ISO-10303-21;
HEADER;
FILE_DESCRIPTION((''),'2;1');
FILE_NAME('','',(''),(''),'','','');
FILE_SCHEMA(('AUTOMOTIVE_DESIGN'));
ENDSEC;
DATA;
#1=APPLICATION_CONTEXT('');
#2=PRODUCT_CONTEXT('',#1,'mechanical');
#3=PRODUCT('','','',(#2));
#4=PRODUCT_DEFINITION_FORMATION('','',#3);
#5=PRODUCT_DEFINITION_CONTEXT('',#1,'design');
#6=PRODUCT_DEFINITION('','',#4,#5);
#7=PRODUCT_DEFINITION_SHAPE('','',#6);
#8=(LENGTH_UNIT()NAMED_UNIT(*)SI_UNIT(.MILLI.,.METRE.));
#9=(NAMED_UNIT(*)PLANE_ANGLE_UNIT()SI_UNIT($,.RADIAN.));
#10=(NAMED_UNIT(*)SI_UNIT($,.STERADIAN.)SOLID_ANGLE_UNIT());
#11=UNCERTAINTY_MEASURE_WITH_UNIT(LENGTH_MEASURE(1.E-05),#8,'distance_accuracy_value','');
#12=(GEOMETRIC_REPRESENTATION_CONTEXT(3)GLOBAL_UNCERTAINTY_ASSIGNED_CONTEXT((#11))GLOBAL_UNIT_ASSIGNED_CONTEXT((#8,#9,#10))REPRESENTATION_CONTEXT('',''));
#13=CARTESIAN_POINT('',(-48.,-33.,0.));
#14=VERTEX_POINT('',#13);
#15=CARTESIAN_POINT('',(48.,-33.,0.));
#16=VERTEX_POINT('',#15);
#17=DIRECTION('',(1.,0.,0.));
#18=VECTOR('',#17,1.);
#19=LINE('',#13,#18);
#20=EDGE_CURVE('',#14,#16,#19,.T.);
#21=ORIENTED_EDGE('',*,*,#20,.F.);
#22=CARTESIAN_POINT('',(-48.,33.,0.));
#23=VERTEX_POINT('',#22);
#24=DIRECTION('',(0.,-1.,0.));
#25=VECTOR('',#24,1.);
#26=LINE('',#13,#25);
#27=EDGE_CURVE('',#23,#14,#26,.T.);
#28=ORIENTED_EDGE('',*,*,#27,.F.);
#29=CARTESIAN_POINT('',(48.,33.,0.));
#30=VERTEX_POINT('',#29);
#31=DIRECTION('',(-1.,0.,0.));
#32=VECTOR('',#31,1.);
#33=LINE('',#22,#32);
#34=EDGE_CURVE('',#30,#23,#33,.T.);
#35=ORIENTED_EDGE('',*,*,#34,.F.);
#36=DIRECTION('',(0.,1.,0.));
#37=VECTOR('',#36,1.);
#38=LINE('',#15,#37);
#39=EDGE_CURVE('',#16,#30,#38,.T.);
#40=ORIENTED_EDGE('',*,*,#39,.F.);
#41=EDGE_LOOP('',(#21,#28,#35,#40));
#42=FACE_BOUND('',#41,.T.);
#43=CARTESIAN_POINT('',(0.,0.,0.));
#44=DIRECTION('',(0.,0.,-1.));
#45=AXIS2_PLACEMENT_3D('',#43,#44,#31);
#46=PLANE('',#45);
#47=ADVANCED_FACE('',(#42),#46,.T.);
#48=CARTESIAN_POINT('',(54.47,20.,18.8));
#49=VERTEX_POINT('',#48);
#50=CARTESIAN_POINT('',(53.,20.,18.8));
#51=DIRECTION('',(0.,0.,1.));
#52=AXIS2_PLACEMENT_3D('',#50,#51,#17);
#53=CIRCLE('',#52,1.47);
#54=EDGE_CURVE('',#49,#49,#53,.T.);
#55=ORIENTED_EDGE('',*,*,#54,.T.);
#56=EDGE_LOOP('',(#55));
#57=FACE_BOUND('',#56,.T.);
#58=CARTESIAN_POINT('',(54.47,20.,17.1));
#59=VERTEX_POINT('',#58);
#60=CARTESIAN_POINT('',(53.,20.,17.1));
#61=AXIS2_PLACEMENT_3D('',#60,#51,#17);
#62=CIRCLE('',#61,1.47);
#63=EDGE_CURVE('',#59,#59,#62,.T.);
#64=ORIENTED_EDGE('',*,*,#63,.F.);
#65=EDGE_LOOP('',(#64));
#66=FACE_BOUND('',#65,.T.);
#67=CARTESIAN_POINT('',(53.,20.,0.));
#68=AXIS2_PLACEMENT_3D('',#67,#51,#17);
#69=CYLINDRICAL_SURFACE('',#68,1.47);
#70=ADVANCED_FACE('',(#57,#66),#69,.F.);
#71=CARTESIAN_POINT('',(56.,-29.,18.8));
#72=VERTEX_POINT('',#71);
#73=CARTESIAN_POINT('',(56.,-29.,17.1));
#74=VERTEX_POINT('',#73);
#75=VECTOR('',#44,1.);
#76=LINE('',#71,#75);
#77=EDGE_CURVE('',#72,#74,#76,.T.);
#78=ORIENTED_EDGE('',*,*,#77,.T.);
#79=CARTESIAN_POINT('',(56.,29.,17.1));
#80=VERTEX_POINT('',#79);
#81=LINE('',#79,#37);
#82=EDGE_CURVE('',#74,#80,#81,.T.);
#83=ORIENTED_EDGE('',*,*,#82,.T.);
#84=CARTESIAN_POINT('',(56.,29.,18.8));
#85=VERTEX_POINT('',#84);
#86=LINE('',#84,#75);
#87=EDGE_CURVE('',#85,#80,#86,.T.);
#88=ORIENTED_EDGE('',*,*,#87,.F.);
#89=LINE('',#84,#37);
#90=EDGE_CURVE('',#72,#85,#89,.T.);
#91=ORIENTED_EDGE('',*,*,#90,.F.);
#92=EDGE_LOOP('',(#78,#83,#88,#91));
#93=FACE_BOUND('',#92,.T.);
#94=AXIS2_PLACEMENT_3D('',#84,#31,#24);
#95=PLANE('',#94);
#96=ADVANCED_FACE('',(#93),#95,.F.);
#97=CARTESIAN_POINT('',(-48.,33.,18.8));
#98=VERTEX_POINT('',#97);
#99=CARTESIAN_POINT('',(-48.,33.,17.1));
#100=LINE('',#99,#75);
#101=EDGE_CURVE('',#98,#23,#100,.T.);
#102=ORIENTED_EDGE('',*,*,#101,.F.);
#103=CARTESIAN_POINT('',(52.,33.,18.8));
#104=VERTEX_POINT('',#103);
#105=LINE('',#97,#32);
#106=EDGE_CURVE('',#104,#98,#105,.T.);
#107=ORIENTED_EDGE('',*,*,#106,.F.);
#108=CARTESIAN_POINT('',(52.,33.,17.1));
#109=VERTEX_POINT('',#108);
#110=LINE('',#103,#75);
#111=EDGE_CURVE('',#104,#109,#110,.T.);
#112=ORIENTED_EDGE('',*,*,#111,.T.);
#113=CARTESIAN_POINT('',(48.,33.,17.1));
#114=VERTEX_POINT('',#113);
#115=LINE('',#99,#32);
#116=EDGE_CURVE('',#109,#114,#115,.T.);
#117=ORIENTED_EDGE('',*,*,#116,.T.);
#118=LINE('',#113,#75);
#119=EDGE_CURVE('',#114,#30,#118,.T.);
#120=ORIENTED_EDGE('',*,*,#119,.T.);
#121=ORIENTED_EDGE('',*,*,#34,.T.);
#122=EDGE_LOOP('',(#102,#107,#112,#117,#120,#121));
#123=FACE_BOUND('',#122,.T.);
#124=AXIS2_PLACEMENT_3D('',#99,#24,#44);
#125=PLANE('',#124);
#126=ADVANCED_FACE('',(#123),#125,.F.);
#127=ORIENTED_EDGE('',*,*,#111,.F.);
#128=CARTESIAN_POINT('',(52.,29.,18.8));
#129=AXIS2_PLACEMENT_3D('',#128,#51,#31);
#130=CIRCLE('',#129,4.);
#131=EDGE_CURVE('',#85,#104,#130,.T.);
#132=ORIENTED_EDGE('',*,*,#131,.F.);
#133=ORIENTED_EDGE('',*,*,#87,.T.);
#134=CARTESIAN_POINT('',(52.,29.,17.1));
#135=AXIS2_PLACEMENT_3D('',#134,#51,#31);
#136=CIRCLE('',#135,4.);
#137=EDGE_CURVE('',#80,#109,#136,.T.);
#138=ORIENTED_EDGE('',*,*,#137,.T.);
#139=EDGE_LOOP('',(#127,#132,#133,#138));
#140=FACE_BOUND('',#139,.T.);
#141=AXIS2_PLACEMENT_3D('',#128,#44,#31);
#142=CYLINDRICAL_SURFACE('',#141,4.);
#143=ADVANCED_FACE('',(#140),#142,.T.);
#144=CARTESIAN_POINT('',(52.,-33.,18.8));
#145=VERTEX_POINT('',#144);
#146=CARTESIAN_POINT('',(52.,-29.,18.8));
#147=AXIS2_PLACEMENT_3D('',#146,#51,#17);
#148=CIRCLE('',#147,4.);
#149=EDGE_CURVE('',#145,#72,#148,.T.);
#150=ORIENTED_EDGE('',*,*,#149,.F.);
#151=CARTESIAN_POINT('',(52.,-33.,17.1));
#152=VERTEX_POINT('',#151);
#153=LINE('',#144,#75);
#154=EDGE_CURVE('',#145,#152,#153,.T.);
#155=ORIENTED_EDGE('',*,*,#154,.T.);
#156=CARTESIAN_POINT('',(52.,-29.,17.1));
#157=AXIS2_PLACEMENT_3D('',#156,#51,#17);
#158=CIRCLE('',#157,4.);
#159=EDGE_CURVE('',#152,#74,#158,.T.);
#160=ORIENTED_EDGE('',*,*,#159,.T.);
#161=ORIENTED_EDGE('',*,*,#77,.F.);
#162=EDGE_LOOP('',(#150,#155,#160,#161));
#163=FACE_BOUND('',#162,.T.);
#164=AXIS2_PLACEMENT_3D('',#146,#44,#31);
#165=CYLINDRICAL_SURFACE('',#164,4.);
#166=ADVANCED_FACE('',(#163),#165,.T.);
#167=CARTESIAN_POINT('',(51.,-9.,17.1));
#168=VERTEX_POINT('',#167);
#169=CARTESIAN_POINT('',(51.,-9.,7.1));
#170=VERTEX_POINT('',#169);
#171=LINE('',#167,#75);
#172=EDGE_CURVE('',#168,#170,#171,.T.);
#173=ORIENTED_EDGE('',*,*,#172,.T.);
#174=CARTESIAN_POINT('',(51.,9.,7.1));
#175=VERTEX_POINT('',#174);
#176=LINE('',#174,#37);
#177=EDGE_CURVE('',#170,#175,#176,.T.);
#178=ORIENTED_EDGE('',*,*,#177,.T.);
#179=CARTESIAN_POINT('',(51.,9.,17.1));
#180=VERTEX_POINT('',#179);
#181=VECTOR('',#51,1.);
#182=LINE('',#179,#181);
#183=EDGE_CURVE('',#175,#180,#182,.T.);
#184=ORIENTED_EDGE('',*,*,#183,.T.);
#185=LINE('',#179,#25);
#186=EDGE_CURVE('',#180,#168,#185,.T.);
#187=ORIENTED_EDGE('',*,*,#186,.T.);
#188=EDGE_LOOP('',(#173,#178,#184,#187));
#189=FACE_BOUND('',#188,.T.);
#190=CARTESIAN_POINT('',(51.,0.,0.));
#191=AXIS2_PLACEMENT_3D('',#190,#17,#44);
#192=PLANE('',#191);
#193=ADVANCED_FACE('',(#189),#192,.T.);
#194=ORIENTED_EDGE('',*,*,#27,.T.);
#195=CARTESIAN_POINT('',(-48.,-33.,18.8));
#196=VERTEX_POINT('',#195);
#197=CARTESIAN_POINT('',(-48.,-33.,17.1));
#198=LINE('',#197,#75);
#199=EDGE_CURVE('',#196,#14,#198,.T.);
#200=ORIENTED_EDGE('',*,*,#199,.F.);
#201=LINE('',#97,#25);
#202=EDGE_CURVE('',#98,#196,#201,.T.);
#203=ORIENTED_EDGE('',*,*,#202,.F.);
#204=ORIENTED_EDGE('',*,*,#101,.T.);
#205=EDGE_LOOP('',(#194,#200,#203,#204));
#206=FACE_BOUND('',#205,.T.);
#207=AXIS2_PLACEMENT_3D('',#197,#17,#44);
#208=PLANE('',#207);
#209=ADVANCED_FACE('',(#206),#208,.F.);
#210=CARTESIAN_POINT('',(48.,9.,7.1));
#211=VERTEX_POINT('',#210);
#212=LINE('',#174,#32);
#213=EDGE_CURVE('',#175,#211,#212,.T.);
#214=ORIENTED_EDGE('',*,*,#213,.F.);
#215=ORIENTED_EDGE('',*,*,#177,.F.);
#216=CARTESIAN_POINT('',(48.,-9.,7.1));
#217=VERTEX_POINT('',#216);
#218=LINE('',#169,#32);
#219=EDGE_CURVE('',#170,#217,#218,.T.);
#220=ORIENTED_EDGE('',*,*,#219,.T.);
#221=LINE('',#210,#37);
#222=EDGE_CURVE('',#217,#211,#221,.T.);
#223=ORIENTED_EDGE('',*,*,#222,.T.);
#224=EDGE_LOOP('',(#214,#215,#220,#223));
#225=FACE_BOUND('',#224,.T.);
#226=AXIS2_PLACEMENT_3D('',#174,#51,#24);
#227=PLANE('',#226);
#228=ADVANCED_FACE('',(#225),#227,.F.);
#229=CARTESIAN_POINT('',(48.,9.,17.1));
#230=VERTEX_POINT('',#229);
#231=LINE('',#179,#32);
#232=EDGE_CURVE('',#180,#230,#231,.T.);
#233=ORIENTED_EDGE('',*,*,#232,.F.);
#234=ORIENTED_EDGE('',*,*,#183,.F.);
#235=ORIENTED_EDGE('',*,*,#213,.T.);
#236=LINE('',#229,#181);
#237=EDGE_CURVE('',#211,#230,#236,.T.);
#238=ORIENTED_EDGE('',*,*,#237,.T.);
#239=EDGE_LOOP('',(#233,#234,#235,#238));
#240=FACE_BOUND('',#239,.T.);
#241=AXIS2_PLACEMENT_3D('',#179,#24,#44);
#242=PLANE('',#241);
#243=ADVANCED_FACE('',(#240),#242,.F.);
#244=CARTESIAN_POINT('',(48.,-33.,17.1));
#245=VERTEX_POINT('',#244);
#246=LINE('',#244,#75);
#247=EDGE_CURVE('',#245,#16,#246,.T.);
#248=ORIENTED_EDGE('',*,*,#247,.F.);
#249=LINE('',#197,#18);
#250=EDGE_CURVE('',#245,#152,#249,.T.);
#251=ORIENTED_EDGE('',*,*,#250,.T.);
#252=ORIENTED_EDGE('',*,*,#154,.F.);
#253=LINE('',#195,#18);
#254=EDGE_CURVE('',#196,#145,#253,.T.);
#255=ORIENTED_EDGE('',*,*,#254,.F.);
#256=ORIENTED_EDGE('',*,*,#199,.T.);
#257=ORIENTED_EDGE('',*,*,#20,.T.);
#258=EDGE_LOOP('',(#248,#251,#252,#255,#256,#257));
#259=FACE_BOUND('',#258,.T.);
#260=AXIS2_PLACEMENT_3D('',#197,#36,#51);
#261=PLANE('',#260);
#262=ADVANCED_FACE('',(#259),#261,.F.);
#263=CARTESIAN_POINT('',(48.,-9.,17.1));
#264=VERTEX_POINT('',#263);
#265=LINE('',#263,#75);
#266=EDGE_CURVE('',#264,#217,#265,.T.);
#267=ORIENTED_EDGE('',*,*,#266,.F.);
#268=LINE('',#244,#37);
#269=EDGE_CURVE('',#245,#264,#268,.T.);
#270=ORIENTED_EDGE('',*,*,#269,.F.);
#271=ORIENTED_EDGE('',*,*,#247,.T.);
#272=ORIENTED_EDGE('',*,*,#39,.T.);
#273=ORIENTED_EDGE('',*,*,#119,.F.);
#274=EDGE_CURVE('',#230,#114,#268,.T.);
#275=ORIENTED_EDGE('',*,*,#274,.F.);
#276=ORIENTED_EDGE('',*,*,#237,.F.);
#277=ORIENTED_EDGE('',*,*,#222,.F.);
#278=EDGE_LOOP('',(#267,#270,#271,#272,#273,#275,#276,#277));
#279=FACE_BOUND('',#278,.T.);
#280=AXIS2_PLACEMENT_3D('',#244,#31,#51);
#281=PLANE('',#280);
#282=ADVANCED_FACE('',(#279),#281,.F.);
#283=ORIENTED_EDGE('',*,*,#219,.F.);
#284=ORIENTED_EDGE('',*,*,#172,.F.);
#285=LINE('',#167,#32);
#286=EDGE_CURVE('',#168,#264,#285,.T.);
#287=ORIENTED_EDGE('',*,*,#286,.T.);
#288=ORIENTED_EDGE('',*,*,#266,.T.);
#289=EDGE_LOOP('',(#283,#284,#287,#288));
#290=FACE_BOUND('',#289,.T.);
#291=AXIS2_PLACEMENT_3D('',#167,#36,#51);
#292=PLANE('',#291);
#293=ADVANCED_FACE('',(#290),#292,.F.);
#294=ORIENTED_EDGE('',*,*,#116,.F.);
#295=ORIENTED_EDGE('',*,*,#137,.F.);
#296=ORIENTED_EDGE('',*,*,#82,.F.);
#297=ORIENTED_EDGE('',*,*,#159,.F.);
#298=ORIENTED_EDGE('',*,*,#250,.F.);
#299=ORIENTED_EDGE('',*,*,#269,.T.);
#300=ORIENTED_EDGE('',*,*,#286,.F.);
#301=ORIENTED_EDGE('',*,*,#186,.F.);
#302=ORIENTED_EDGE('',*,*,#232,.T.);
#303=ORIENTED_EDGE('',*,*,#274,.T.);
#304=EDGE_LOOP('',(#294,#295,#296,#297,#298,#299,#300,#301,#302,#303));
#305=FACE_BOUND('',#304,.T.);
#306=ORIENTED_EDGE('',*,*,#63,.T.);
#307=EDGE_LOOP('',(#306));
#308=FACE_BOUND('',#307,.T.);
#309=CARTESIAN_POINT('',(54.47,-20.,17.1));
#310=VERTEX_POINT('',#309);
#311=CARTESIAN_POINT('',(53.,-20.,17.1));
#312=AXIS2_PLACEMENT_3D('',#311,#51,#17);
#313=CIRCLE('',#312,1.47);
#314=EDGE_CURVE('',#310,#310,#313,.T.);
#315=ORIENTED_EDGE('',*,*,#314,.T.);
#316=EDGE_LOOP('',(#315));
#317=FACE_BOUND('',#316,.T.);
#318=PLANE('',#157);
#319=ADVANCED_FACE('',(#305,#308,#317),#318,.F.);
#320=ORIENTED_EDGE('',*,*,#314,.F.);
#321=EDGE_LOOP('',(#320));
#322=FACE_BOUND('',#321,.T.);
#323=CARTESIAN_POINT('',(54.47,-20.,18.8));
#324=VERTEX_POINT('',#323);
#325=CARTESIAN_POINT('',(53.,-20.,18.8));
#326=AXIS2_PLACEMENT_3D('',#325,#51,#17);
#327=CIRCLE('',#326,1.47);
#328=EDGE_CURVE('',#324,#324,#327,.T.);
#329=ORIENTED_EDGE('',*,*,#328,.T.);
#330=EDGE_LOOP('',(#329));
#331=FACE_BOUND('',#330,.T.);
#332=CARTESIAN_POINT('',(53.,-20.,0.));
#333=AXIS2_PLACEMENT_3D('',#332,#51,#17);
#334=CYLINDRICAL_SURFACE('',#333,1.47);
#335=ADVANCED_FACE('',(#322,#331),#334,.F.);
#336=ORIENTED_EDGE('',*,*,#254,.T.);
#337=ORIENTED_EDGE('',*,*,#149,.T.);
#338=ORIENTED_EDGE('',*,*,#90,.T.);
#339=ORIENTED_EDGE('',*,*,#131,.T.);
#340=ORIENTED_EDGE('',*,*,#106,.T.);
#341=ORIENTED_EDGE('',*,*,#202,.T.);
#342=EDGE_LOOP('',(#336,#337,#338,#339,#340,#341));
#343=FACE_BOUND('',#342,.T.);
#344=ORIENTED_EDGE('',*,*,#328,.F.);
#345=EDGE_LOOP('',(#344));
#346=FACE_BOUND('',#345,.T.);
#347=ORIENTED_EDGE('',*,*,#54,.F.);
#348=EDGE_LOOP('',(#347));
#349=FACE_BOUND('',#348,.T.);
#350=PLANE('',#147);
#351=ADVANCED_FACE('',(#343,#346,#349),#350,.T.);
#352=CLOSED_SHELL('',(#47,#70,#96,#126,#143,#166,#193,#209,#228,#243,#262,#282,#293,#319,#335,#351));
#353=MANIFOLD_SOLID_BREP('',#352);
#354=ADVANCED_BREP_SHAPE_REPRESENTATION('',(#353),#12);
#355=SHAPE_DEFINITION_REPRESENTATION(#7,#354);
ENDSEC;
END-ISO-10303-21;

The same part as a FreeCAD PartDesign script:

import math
import FreeCAD as App
import Part
import Sketcher

V = App.Vector


def add_polygon(sketch, points):
    """Adds a closed chain of lines whose ends are joined by coincident constraints."""
    first, n = sketch.GeometryCount, len(points)
    for a, b in zip(points, points[1:] + points[:1]):
        sketch.addGeometry(Part.LineSegment(App.Vector(*a, 0), App.Vector(*b, 0)), False)
    for i in range(n):
        sketch.addConstraint(Sketcher.Constraint("Coincident", first + i, 2, first + (i + 1) % n, 1))

doc = App.newDocument("Part")
body = doc.addObject("PartDesign::Body", "Body")

# Sketch on XY plane
sketch1 = body.newObject("Sketcher::SketchObject", "Sketch")
sketch1.AttachmentSupport = (doc.getObject("XY_Plane"), [""])
sketch1.MapMode = "FlatFace"
add_polygon(sketch1, [(-48, 33), (-48, -33), (48, -33), (48, 33)])  # lines 0-3
sketch1.addConstraint(Sketcher.Constraint("Vertical", 0))
sketch1.addConstraint(Sketcher.Constraint("Horizontal", 1))
sketch1.addConstraint(Sketcher.Constraint("Vertical", 2))
sketch1.addConstraint(Sketcher.Constraint("Horizontal", 3))
sketch1.addConstraint(Sketcher.Constraint("Symmetric", 0, 2, 2, 2, -1, 1))
sketch1.addConstraint(Sketcher.Constraint("DistanceX", 1, 1, 1, 2, 96.0))
sketch1.addConstraint(Sketcher.Constraint("DistanceY", 0, 2, 0, 1, 66.0))
pad1 = body.newObject("PartDesign::Pad", "Pad")
pad1.Profile = sketch1
pad1.Length = 17.1

# Sketch on XY plane
sketch2 = body.newObject("Sketcher::SketchObject", "Sketch001")
sketch2.AttachmentSupport = (doc.getObject("XY_Plane"), [""])
sketch2.MapMode = "FlatFace"
sketch2.AttachmentOffset = App.Placement(V(0, 0, 17.1), App.Rotation())
sketch2.addGeometry(Part.LineSegment(V(52, 33, 0), V(-48, 33, 0)), False)
sketch2.addGeometry(Part.LineSegment(V(-48, 33, 0), V(-48, -33, 0)), False)
sketch2.addGeometry(Part.LineSegment(V(-48, -33, 0), V(52, -33, 0)), False)
sketch2.addGeometry(Part.ArcOfCircle(Part.Circle(V(52, -29, 0), V(0, 0, 1), 4), math.radians(-90), math.radians(0)), False)
sketch2.addGeometry(Part.LineSegment(V(56, -29, 0), V(56, 29, 0)), False)
sketch2.addGeometry(Part.ArcOfCircle(Part.Circle(V(52, 29, 0), V(0, 0, 1), 4), math.radians(0), math.radians(90)), False)
sketch2.addConstraint(Sketcher.Constraint("Coincident", 0, 2, 1, 1))
sketch2.addConstraint(Sketcher.Constraint("Coincident", 1, 2, 2, 1))
sketch2.addConstraint(Sketcher.Constraint("Tangent", 2, 2, 3, 1))
sketch2.addConstraint(Sketcher.Constraint("Tangent", 3, 2, 4, 1))
sketch2.addConstraint(Sketcher.Constraint("Tangent", 4, 2, 5, 1))
sketch2.addConstraint(Sketcher.Constraint("Tangent", 5, 2, 0, 1))
sketch2.addConstraint(Sketcher.Constraint("Horizontal", 0))
sketch2.addConstraint(Sketcher.Constraint("Vertical", 1))
sketch2.addConstraint(Sketcher.Constraint("Horizontal", 2))
sketch2.addConstraint(Sketcher.Constraint("Vertical", 4))
sketch2.addConstraint(Sketcher.Constraint("Equal", 3, 5))
sketch2.addConstraint(Sketcher.Constraint("Radius", 3, 4.0))
sketch2.addConstraint(Sketcher.Constraint("DistanceX", 0, 2, 0, 1, 100.0))
sketch2.addConstraint(Sketcher.Constraint("DistanceY", 1, 2, 1, 1, 66.0))
sketch2.addConstraint(Sketcher.Constraint("DistanceX", -1, 1, 3, 3, 52.0))
sketch2.addConstraint(Sketcher.Constraint("DistanceY", 3, 3, -1, 1, 29.0))
pad2 = body.newObject("PartDesign::Pad", "Pad001")
pad2.Profile = sketch2
pad2.Length = 1.7

# Sketch on YZ plane
sketch3 = body.newObject("Sketcher::SketchObject", "Sketch002")
sketch3.AttachmentSupport = (doc.getObject("YZ_Plane"), [""])
sketch3.MapMode = "FlatFace"
sketch3.AttachmentOffset = App.Placement(V(0, 0, 48), App.Rotation())
add_polygon(sketch3, [(9, 17), (-9, 17), (-9, 7), (9, 7)])  # lines 0-3
sketch3.addConstraint(Sketcher.Constraint("Horizontal", 0))
sketch3.addConstraint(Sketcher.Constraint("Vertical", 1))
sketch3.addConstraint(Sketcher.Constraint("Horizontal", 2))
sketch3.addConstraint(Sketcher.Constraint("Vertical", 3))
sketch3.addConstraint(Sketcher.Constraint("DistanceX", 0, 2, 0, 1, 18.0))
sketch3.addConstraint(Sketcher.Constraint("DistanceY", 1, 2, 1, 1, 10.0))
sketch3.addConstraint(Sketcher.Constraint("DistanceX", 0, 2, -1, 1, 9.0))
sketch3.addConstraint(Sketcher.Constraint("DistanceY", -1, 1, 0, 2, 17.1))
pad3 = body.newObject("PartDesign::Pad", "Pad002")
pad3.Profile = sketch3
pad3.Length = 3

# Sketch on XY plane
sketch4 = body.newObject("Sketcher::SketchObject", "Sketch003")
sketch4.AttachmentSupport = (doc.getObject("XY_Plane"), [""])
sketch4.MapMode = "FlatFace"
sketch4.AttachmentOffset = App.Placement(V(0, 0, 18.8), App.Rotation())
sketch4.addGeometry(Part.Circle(V(53, 20, 0), V(0, 0, 1), 1.5), False)
sketch4.addGeometry(Part.Circle(V(53, -20, 0), V(0, 0, 1), 1.5), False)
sketch4.addConstraint(Sketcher.Constraint("Equal", 0, 1))
sketch4.addConstraint(Sketcher.Constraint("Symmetric", 0, 3, 1, 3, -1))
sketch4.addConstraint(Sketcher.Constraint("Diameter", 0, 2.94))
sketch4.addConstraint(Sketcher.Constraint("DistanceX", -1, 1, 0, 3, 53.0))
sketch4.addConstraint(Sketcher.Constraint("DistanceY", -1, 1, 0, 3, 20.0))
pocket1 = body.newObject("PartDesign::Pocket", "Pocket")
pocket1.Profile = sketch4
pocket1.Type = "ThroughAll"

doc.recompute()
